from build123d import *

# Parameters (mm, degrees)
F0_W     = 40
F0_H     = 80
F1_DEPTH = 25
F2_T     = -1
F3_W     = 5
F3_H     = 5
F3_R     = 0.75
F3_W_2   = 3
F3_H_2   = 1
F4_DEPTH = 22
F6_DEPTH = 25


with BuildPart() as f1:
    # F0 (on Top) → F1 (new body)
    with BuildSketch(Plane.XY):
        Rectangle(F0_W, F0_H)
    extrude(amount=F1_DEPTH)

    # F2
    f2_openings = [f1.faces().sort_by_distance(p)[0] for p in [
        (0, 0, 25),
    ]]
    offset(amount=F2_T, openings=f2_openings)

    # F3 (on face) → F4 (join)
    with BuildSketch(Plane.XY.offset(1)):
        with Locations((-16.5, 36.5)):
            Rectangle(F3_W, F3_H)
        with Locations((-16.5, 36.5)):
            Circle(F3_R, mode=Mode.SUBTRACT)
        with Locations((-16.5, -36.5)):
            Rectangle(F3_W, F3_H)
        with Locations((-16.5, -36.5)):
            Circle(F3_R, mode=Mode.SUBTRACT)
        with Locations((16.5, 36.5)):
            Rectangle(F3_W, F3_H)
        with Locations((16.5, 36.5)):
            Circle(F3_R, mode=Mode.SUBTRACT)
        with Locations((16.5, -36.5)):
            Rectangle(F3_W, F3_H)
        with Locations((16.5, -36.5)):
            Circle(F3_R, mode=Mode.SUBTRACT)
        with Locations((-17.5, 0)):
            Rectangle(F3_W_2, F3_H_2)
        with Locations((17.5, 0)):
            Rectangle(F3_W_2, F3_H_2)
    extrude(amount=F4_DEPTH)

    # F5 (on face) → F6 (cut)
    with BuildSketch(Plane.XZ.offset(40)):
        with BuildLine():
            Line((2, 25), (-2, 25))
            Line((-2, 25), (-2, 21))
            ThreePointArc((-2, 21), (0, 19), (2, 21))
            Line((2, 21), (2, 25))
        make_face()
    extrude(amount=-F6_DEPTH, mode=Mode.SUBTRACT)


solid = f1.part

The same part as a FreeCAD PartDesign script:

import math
import FreeCAD as App
import Part
import Sketcher


def faces_at(feature, points):
    """Names of the faces that lie closest to the given points."""
    faces = feature.Shape.Faces
    near = lambda p: min(range(len(faces)), key=lambda i: faces[i].distToShape(Part.Vertex(*p))[0])
    return sorted({f"Face{near(p) + 1}" for p in points})


def add_polygon(sketch, points):
    """Adds a closed chain of lines whose ends are joined by coincident constraints."""
    first, n = sketch.GeometryCount, len(points)
    for a, b in zip(points, points[1:] + points[:1]):
        sketch.addGeometry(Part.LineSegment(App.Vector(*a, 0), App.Vector(*b, 0)), False)
    for i in range(n):
        sketch.addConstraint(Sketcher.Constraint("Coincident", first + i, 2, first + (i + 1) % n, 1))

doc = App.newDocument("Part")
params = doc.addObject("Spreadsheet::Sheet", "Params")
for row, (alias, value) in enumerate([
    ("sketch1_width", "40 mm"),
    ("sketch1_height", "80 mm"),
    ("pad1_length", "25 mm"),
    ("thickness_wall", "1 mm"),
    ("sketch2_diameter", "1.5 mm"),
    ("sketch2_width", "5 mm"),
    ("sketch2_width2", "3 mm"),
    ("sketch2_height", "1 mm"),
    ("pad2_length", "22 mm"),
    ("sketch3_radius", "2 mm"),
    ("pocket1_length", "25 mm"),
], start=1):
    params.set(f"A{row}", alias)
    params.set(f"B{row}", "=" + value)
    params.setAlias(f"B{row}", alias)

body = doc.addObject("PartDesign::Body", "Body")

# Sketch on XY plane
sketch1 = body.newObject("Sketcher::SketchObject", "Sketch")
sketch1.AttachmentSupport = (doc.getObject("XY_Plane"), [""])
sketch1.MapMode = "FlatFace"
add_polygon(sketch1, [(-20, 40), (-20, -40), (20, -40), (20, 40)])  # lines 0-3
sketch1.addConstraint(Sketcher.Constraint("Vertical", 0))
sketch1.addConstraint(Sketcher.Constraint("Horizontal", 1))
sketch1.addConstraint(Sketcher.Constraint("Vertical", 2))
sketch1.addConstraint(Sketcher.Constraint("Horizontal", 3))
sketch1.addConstraint(Sketcher.Constraint("Symmetric", 0, 2, 2, 2, -1, 1))
sketch1.addConstraint(Sketcher.Constraint("DistanceX", 1, 1, 1, 2, 40.0))
sketch1.addConstraint(Sketcher.Constraint("DistanceY", 0, 2, 0, 1, 80.0))
sketch1.setExpression("Constraints[9]", "Params.sketch1_width")
sketch1.setExpression("Constraints[10]", "Params.sketch1_height")
pad1 = body.newObject("PartDesign::Pad", "Pad")
pad1.Profile = sketch1
pad1.setExpression("Length", "Params.pad1_length")
doc.recompute()

thickness = body.newObject("PartDesign::Thickness", "Thickness")
thickness.Base = (pad1, faces_at(pad1, [(0, 0, 25)]))
thickness.setExpression("Value", "Params.thickness_wall")
thickness.Reversed = True
thickness.Join = "Arc"

# Sketch on XY plane
sketch2 = body.newObject("Sketcher::SketchObject", "Sketch001")
sketch2.AttachmentSupport = (doc.getObject("XY_Plane"), [""])
sketch2.MapMode = "FlatFace"
sketch2.AttachmentOffset = App.Placement(App.Vector(0, 0, 1), App.Rotation())
add_polygon(sketch2, [(-19, 39), (-19, 34), (-14, 34), (-14, 39)])  # lines 0-3
sketch2.addGeometry(Part.Circle(App.Vector(-16.5, 36.5, 0), App.Vector(0, 0, 1), 0.8), False)  # 4
add_polygon(sketch2, [(-19, -34), (-19, -39), (-14, -39), (-14, -34)])  # lines 5-8
sketch2.addGeometry(Part.Circle(App.Vector(-16.5, -36.5, 0), App.Vector(0, 0, 1), 0.8), False)  # 9
add_polygon(sketch2, [(14, 39), (14, 34), (19, 34), (19, 39)])  # lines 10-13
sketch2.addGeometry(Part.Circle(App.Vector(16.5, 36.5, 0), App.Vector(0, 0, 1), 0.8), False)  # 14
add_polygon(sketch2, [(14, -34), (14, -39), (19, -39), (19, -34)])  # lines 15-18
sketch2.addGeometry(Part.Circle(App.Vector(16.5, -36.5, 0), App.Vector(0, 0, 1), 0.8), False)  # 19
add_polygon(sketch2, [(-19, 0.5), (-19, -0.5), (-16, -0.5), (-16, 0.5)])  # lines 20-23
add_polygon(sketch2, [(16, 0.5), (16, -0.5), (19, -0.5), (19, 0.5)])  # lines 24-27
sketch2.addConstraint(Sketcher.Constraint("Vertical", 0))
sketch2.addConstraint(Sketcher.Constraint("Horizontal", 1))
sketch2.addConstraint(Sketcher.Constraint("Vertical", 2))
sketch2.addConstraint(Sketcher.Constraint("Horizontal", 3))
sketch2.addConstraint(Sketcher.Constraint("Vertical", 5))
sketch2.addConstraint(Sketcher.Constraint("Horizontal", 6))
sketch2.addConstraint(Sketcher.Constraint("Vertical", 7))
sketch2.addConstraint(Sketcher.Constraint("Horizontal", 8))
sketch2.addConstraint(Sketcher.Constraint("Vertical", 10))
sketch2.addConstraint(Sketcher.Constraint("Horizontal", 11))
sketch2.addConstraint(Sketcher.Constraint("Vertical", 12))
sketch2.addConstraint(Sketcher.Constraint("Horizontal", 13))
sketch2.addConstraint(Sketcher.Constraint("Vertical", 15))
sketch2.addConstraint(Sketcher.Constraint("Horizontal", 16))
sketch2.addConstraint(Sketcher.Constraint("Vertical", 17))
sketch2.addConstraint(Sketcher.Constraint("Horizontal", 18))
sketch2.addConstraint(Sketcher.Constraint("Vertical", 20))
sketch2.addConstraint(Sketcher.Constraint("Horizontal", 21))
sketch2.addConstraint(Sketcher.Constraint("Vertical", 22))
sketch2.addConstraint(Sketcher.Constraint("Horizontal", 23))
sketch2.addConstraint(Sketcher.Constraint("Vertical", 24))
sketch2.addConstraint(Sketcher.Constraint("Horizontal", 25))
sketch2.addConstraint(Sketcher.Constraint("Vertical", 26))
sketch2.addConstraint(Sketcher.Constraint("Horizontal", 27))
sketch2.addConstraint(Sketcher.Constraint("Equal", 4, 9))
sketch2.addConstraint(Sketcher.Constraint("Equal", 9, 14))
sketch2.addConstraint(Sketcher.Constraint("Equal", 14, 19))
sketch2.addConstraint(Sketcher.Constraint("Symmetric", 9, 3, 14, 3, -1, 1))
sketch2.addConstraint(Sketcher.Constraint("Symmetric", 4, 3, 19, 3, -1, 1))
sketch2.addConstraint(Sketcher.Constraint("Symmetric", 7, 2, 10, 2, -1, 1))
sketch2.addConstraint(Sketcher.Constraint("Symmetric", 5, 2, 12, 2, -1, 1))
sketch2.addConstraint(Sketcher.Constraint("Symmetric", 2, 2, 15, 2, -1, 1))
sketch2.addConstraint(Sketcher.Constraint("Symmetric", 0, 2, 17, 2, -1, 1))
sketch2.addConstraint(Sketcher.Constraint("Symmetric", 22, 2, 24, 2, -1, 1))
sketch2.addConstraint(Sketcher.Constraint("Symmetric", 20, 2, 26, 2, -1, 1))
sketch2.addConstraint(Sketcher.Constraint("Symmetric", 4, 3, 14, 3, -2))
sketch2.addConstraint(Sketcher.Constraint("Symmetric", 1, 2, 10, 2, -2))
sketch2.addConstraint(Sketcher.Constraint("Symmetric", 3, 2, 12, 2, -2))
sketch2.addConstraint(Sketcher.Constraint("Horizontal", 21, 2, 24, 2))
sketch2.addConstraint(Sketcher.Constraint("Vertical", 8, 2, 20, 2))
sketch2.addConstraint(Sketcher.Constraint("Equal", 18, 0))
sketch2.addConstraint(Sketcher.Constraint("Diameter", 4, 1.5))
sketch2.addConstraint(Sketcher.Constraint("DistanceX", 1, 1, 1, 2, 5.0))
sketch2.addConstraint(Sketcher.Constraint("DistanceX", 21, 1, 21, 2, 3.0))
sketch2.addConstraint(Sketcher.Constraint("DistanceY", 20, 2, 20, 1, 1.0))
sketch2.addConstraint(Sketcher.Constraint("DistanceX", 0, 2, -1, 1, 19.0))
sketch2.addConstraint(Sketcher.Constraint("DistanceY", -1, 1, 0, 2, 34.0))
sketch2.addConstraint(Sketcher.Constraint("DistanceY", 9, 3, 4, 3, 73.0))
sketch2.addConstraint(Sketcher.Constraint("DistanceX", 4, 3, 14, 3, 33.0))
sketch2.setExpression("Constraints[65]", "Params.sketch2_diameter")
sketch2.setExpression("Constraints[66]", "Params.sketch2_width")
sketch2.setExpression("Constraints[67]", "Params.sketch2_width2")
sketch2.setExpression("Constraints[68]", "Params.sketch2_height")
pad2 = body.newObject("PartDesign::Pad", "Pad001")
pad2.Profile = sketch2
pad2.setExpression("Length", "Params.pad2_length")

# Sketch on XZ plane
sketch3 = body.newObject("Sketcher::SketchObject", "Sketch002")
sketch3.AttachmentSupport = (doc.getObject("XZ_Plane"), [""])
sketch3.MapMode = "FlatFace"
sketch3.AttachmentOffset = App.Placement(App.Vector(0, 0, 40), App.Rotation())
sketch3.addGeometry(Part.LineSegment(App.Vector(2, 25, 0), App.Vector(-2, 25, 0)), False)
sketch3.addGeometry(Part.LineSegment(App.Vector(-2, 25, 0), App.Vector(-2, 21, 0)), False)
sketch3.addGeometry(Part.ArcOfCircle(Part.Circle(App.Vector(0, 21, 0), App.Vector(0, 0, 1), 2), math.radians(180), math.radians(360)), False)
sketch3.addGeometry(Part.LineSegment(App.Vector(2, 21, 0), App.Vector(2, 25, 0)), False)
sketch3.addConstraint(Sketcher.Constraint("Coincident", 0, 2, 1, 1))
sketch3.addConstraint(Sketcher.Constraint("Tangent", 1, 2, 2, 1))
sketch3.addConstraint(Sketcher.Constraint("Tangent", 2, 2, 3, 1))
sketch3.addConstraint(Sketcher.Constraint("Coincident", 3, 2, 0, 1))
sketch3.addConstraint(Sketcher.Constraint("Horizontal", 0))
sketch3.addConstraint(Sketcher.Constraint("Vertical", 1))
sketch3.addConstraint(Sketcher.Constraint("Vertical", 3))
sketch3.addConstraint(Sketcher.Constraint("PointOnObject", 2, 3, -2))
sketch3.addConstraint(Sketcher.Constraint("Equal", 0, 1))
sketch3.addConstraint(Sketcher.Constraint("Radius", 2, 2.0))
sketch3.addConstraint(Sketcher.Constraint("DistanceY", -1, 1, 2, 3, 21.0))
sketch3.setExpression("Constraints[9]", "Params.sketch3_radius")
pocket1 = body.newObject("PartDesign::Pocket", "Pocket")
pocket1.Profile = sketch3
pocket1.setExpression("Length", "Params.pocket1_length")

doc.recompute()
